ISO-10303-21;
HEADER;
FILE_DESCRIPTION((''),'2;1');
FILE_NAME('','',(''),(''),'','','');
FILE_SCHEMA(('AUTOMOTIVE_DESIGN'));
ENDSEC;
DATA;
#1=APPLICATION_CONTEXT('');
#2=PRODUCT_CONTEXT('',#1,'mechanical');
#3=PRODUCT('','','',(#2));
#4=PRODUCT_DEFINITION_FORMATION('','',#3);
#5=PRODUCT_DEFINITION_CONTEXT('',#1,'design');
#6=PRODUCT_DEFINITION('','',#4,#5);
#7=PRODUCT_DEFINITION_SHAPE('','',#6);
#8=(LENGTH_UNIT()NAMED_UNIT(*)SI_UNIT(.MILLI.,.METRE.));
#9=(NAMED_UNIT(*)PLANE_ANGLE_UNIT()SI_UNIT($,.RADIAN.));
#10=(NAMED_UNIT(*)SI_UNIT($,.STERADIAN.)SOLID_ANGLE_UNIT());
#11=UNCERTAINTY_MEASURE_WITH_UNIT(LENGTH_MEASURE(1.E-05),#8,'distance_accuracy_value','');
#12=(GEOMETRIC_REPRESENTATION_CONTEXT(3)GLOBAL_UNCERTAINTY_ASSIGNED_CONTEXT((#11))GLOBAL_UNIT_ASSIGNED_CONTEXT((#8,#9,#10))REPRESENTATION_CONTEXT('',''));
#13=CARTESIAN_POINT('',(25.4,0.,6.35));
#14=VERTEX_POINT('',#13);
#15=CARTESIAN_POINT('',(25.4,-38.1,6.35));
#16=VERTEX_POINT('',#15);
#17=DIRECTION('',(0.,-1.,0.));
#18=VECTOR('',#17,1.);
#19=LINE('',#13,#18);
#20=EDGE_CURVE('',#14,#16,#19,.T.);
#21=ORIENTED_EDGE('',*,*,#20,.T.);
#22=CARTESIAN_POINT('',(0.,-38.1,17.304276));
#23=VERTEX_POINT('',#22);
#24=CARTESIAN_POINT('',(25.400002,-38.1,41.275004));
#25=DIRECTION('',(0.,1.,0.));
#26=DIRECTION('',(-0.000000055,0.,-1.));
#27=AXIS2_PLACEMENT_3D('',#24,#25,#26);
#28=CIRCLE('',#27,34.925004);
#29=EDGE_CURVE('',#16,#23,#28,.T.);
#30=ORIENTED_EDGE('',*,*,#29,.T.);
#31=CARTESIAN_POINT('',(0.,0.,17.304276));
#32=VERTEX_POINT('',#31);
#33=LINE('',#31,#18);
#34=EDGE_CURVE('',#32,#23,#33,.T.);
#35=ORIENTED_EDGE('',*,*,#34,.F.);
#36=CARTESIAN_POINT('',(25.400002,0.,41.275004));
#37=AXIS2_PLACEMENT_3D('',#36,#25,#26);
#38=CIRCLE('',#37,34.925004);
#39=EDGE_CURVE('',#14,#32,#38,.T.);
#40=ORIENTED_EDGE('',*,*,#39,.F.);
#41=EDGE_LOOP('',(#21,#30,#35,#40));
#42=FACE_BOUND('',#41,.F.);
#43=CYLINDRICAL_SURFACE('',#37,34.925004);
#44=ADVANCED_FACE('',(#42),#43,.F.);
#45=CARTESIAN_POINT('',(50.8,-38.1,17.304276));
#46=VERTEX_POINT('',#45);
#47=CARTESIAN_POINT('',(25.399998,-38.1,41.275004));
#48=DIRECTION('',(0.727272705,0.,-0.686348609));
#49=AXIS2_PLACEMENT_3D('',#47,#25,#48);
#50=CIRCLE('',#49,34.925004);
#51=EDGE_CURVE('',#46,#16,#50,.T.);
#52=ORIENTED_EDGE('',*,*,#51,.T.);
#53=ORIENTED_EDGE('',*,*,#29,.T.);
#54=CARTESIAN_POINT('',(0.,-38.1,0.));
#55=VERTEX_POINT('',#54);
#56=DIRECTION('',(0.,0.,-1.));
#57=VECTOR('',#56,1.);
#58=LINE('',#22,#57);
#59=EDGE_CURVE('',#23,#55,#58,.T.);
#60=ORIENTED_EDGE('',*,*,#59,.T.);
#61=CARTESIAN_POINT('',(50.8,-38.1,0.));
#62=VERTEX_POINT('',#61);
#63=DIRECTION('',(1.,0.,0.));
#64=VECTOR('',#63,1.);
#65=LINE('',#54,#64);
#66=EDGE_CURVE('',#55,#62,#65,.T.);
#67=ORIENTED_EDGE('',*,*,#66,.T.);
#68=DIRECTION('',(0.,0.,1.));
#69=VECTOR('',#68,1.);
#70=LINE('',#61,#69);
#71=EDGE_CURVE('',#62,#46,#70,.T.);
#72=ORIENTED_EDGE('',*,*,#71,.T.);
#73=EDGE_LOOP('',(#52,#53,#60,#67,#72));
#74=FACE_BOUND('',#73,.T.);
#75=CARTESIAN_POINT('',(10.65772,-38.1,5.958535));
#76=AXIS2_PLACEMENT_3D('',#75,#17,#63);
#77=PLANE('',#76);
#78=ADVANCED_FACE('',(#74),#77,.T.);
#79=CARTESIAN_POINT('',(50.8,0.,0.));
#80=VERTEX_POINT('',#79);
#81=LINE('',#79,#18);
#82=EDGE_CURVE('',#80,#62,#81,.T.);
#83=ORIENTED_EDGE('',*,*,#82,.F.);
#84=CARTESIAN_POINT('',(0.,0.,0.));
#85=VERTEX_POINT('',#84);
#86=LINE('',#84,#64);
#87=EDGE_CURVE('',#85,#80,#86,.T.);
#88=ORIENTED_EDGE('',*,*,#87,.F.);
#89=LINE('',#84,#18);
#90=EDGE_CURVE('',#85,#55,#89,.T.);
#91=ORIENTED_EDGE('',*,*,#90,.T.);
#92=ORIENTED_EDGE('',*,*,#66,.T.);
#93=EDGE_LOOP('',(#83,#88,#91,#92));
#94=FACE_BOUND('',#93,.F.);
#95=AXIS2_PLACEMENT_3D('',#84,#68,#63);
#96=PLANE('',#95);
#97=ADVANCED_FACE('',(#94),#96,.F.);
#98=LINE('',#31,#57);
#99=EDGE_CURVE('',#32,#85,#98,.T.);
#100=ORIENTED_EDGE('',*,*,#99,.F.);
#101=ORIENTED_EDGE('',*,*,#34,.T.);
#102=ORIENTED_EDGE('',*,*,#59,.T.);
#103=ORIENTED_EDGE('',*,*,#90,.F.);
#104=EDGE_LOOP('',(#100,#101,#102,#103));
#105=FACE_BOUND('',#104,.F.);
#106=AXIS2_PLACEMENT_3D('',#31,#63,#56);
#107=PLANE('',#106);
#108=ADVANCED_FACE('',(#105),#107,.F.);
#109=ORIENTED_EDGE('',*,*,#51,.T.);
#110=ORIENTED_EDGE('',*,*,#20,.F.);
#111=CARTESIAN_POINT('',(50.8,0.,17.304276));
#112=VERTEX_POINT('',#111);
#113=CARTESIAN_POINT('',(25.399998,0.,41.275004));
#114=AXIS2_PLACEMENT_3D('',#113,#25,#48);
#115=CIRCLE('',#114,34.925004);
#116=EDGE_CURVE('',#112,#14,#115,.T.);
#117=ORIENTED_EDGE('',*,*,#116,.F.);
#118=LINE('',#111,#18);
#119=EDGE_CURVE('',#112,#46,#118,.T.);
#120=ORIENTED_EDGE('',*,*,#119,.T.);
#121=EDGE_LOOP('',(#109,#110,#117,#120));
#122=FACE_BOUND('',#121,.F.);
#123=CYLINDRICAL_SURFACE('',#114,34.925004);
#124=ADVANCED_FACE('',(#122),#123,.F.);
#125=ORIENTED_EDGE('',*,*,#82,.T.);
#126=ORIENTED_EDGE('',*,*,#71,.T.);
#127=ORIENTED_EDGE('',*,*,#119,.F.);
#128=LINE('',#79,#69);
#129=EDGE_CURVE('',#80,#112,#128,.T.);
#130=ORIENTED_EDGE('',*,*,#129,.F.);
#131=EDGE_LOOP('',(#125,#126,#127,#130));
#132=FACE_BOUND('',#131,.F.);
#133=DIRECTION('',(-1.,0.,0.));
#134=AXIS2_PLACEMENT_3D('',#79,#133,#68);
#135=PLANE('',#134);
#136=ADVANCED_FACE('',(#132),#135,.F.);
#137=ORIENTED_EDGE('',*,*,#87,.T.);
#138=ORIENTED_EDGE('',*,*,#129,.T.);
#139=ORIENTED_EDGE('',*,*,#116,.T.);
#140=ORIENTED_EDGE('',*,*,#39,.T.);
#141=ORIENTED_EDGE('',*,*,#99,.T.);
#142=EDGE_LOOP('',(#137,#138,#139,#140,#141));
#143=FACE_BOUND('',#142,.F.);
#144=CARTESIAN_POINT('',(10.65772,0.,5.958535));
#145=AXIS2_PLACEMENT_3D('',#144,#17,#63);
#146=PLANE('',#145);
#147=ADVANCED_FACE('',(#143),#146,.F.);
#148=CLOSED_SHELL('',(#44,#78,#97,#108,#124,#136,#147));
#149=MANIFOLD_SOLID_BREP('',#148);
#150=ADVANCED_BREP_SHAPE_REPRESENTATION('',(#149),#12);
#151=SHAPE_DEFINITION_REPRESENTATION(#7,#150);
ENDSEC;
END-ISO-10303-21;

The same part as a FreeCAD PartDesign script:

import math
import FreeCAD as App
import Part
import Sketcher
from FreeCAD import Vector
Q = App.Units.Quantity

doc = App.newDocument("Part")
body = doc.addObject("PartDesign::Body", "Body")

sketch1 = body.newObject("Sketcher::SketchObject", "Sketch")
sketch1.AttachmentSupport = (doc.getObject("XZ_Plane"), [""])
sketch1.MapMode = "FlatFace"
sketch1.addGeometry([
    Part.LineSegment(Vector(0, 17.304276, 0), Vector(0, 0, 0)),
    Part.LineSegment(Vector(0, 0, 0), Vector(50.8, 0, 0)),
    Part.LineSegment(Vector(50.8, 0, 0), Vector(50.8, 17.304276, 0)),
    Part.ArcOfCircle(Part.Circle(Vector(25.399998, 41.275004, 0), Vector(0, 0, 1), 34.925004), math.radians(-89.999997), math.radians(-43.34176)),
    Part.ArcOfCircle(Part.Circle(Vector(25.400002, 41.275004, 0), Vector(0, 0, 1), 34.925004), math.radians(-136.65824), math.radians(-90.000003)),
], False)
sketch1.addConstraint([
    Sketcher.Constraint("Coincident", 0, 2, 1, 1),
    Sketcher.Constraint("Coincident", 1, 2, 2, 1),
    Sketcher.Constraint("Coincident", 2, 2, 3, 2),
    Sketcher.Constraint("Tangent", 3, 1, 4, 2),
    Sketcher.Constraint("Coincident", 4, 1, 0, 1),
    Sketcher.Constraint("Vertical", 0),
    Sketcher.Constraint("Horizontal", 1),
    Sketcher.Constraint("Vertical", 2),
    Sketcher.Constraint("Coincident", 0, 2, -1, 1),
    Sketcher.Constraint("Equal", 3, 4),
    Sketcher.Constraint("Horizontal", 2, 2, 4, 1),
    Sketcher.Constraint("Vertical", 4, 3, 3, 1),
    Sketcher.Constraint("DistanceX", 1, 1, 1, 2, Q("2 in")),
    Sketcher.Constraint("Radius", 3, Q("1.3750001 in")),
    Sketcher.Constraint("DistanceY", -1, 1, 3, 1, Q("0.25 in")),
])
pad1 = body.newObject("PartDesign::Pad", "Pad")
pad1.Profile = sketch1
pad1.Length = Q("1.5 in")

doc.recompute()
